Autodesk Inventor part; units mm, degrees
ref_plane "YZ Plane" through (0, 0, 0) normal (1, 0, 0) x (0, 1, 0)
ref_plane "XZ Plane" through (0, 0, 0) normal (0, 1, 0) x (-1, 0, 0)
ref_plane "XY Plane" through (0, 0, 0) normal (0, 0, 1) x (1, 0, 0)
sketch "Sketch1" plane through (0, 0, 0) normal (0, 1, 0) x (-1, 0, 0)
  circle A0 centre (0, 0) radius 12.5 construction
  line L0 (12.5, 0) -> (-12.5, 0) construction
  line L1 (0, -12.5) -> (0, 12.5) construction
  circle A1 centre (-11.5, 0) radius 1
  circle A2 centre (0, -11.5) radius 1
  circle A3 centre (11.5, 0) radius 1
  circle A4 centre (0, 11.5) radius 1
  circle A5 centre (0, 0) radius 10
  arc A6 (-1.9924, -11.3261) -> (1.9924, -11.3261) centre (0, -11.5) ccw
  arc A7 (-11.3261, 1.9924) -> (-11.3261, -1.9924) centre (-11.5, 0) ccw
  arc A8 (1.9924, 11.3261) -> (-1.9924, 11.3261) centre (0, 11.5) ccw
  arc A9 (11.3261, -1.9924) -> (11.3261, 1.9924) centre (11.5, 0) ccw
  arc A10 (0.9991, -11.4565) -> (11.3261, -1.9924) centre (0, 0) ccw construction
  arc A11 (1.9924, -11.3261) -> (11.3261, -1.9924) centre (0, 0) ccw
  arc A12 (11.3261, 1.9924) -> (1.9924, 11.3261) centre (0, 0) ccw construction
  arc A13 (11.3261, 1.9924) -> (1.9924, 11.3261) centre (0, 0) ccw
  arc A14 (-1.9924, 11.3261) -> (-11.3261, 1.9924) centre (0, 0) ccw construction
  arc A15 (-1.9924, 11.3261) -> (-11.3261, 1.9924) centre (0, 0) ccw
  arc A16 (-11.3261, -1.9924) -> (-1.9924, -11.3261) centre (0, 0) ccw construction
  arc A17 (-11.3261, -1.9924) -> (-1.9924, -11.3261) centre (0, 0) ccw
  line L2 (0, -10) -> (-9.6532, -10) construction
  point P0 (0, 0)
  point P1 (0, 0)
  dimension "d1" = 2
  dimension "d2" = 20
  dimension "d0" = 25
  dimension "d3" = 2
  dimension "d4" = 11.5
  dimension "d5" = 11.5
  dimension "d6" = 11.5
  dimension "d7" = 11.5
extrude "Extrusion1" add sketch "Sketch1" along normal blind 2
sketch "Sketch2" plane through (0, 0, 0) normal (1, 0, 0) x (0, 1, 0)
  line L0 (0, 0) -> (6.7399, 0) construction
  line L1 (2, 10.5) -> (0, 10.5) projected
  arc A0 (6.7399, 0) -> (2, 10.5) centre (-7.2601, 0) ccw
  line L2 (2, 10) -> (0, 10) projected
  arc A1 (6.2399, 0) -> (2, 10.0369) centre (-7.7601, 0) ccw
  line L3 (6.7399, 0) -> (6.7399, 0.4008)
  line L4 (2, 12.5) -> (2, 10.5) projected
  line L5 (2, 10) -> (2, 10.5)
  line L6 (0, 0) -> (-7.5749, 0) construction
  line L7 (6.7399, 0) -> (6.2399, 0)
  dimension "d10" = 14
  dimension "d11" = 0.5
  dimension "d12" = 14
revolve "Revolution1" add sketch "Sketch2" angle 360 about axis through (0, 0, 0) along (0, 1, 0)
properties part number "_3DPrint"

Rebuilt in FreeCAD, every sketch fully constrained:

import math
import FreeCAD as App
import Part
import Sketcher
Q = App.Units.Quantity

doc = App.newDocument("Part")
params = doc.addObject("Spreadsheet::Sheet", "Params")
for row, (alias, value) in enumerate([
    ("sketch1_diameter", "2 mm"),
    ("sketch1_diameter2", "20 mm"),
    ("sketch1_radius", "2 mm"),
    ("sketch1_radius2", "11.5 mm"),
    ("pad1_length", "2 mm"),
    ("sketch2_radius", "14 mm"),
    ("sketch2_width", "0.5 mm"),
    ("revolution_angle", "360 deg"),
], start=1):
    params.set(f"A{row}", alias)
    params.set(f"B{row}", "=" + value)
    params.setAlias(f"B{row}", alias)

body = doc.addObject("PartDesign::Body", "Body")

# Sketch on XZ plane
sketch1 = body.newObject("Sketcher::SketchObject", "Sketch")
sketch1.AttachmentSupport = (doc.getObject("XZ_Plane"), [""])
sketch1.MapMode = "FlatFace"
sketch1.addGeometry(Part.ArcOfCircle(Part.Circle(App.Vector(0, 0, 0), App.Vector(0, 0, 1), 11.500009), math.radians(-80.023046), math.radians(-9.976954)), False)
sketch1.addGeometry(Part.ArcOfCircle(Part.Circle(App.Vector(0, -11.5, 0), App.Vector(0, 0, 1), 1.999975), math.radians(175.01177), math.radians(364.98823)), False)
sketch1.addGeometry(Part.ArcOfCircle(Part.Circle(App.Vector(0, 0, 0), App.Vector(0, 0, 1), 11.500009), math.radians(-170.023046), math.radians(-99.976954)), False)
sketch1.addGeometry(Part.ArcOfCircle(Part.Circle(App.Vector(-11.5, 0, 0), App.Vector(0, 0, 1), 1.999975), math.radians(85.01177), math.radians(274.98823)), False)
sketch1.addGeometry(Part.ArcOfCircle(Part.Circle(App.Vector(0, 0, 0), App.Vector(0, 0, 1), 11.500009), math.radians(99.976954), math.radians(170.023046)), False)
sketch1.addGeometry(Part.ArcOfCircle(Part.Circle(App.Vector(0, 11.5, 0), App.Vector(0, 0, 1), 1.999975), math.radians(-4.98823), math.radians(184.98823)), False)
sketch1.addGeometry(Part.ArcOfCircle(Part.Circle(App.Vector(0, 0, 0), App.Vector(0, 0, 1), 11.500009), math.radians(9.976954), math.radians(80.023046)), False)
sketch1.addGeometry(Part.ArcOfCircle(Part.Circle(App.Vector(11.5, 0, 0), App.Vector(0, 0, 1), 1.999975), math.radians(-94.98823), math.radians(94.98823)), False)
sketch1.addGeometry(Part.Circle(App.Vector(0, -11.5, 0), App.Vector(0, 0, 1), 1), False)
sketch1.addGeometry(Part.Circle(App.Vector(11.5, 0, 0), App.Vector(0, 0, 1), 1), False)
sketch1.addGeometry(Part.Circle(App.Vector(0, 0, 0), App.Vector(0, 0, 1), 10), False)
sketch1.addGeometry(Part.Circle(App.Vector(-11.5, 0, 0), App.Vector(0, 0, 1), 1), False)
sketch1.addGeometry(Part.Circle(App.Vector(0, 11.5, 0), App.Vector(0, 0, 1), 1), False)
sketch1.addConstraint(Sketcher.Constraint("Coincident", 0, 1, 1, 2))
sketch1.addConstraint(Sketcher.Constraint("Coincident", 1, 1, 2, 2))
sketch1.addConstraint(Sketcher.Constraint("Coincident", 2, 1, 3, 2))
sketch1.addConstraint(Sketcher.Constraint("Coincident", 3, 1, 4, 2))
sketch1.addConstraint(Sketcher.Constraint("Coincident", 4, 1, 5, 2))
sketch1.addConstraint(Sketcher.Constraint("Coincident", 5, 1, 6, 2))
sketch1.addConstraint(Sketcher.Constraint("Coincident", 6, 1, 7, 2))
sketch1.addConstraint(Sketcher.Constraint("Coincident", 7, 1, 0, 2))
sketch1.addConstraint(Sketcher.Constraint("Coincident", 0, 3, -1, 1))
sketch1.addConstraint(Sketcher.Constraint("Coincident", 2, 3, -1, 1))
sketch1.addConstraint(Sketcher.Constraint("Coincident", 4, 3, -1, 1))
sketch1.addConstraint(Sketcher.Constraint("Coincident", 6, 3, -1, 1))
sketch1.addConstraint(Sketcher.Constraint("Coincident", 10, 3, -1, 1))
sketch1.addConstraint(Sketcher.Constraint("Coincident", 8, 3, 1, 3))
sketch1.addConstraint(Sketcher.Constraint("Coincident", 9, 3, 7, 3))
sketch1.addConstraint(Sketcher.Constraint("Coincident", 11, 3, 3, 3))
sketch1.addConstraint(Sketcher.Constraint("Coincident", 12, 3, 5, 3))
sketch1.addConstraint(Sketcher.Constraint("Equal", 0, 2))
sketch1.addConstraint(Sketcher.Constraint("Equal", 1, 3))
sketch1.addConstraint(Sketcher.Constraint("Equal", 2, 4))
sketch1.addConstraint(Sketcher.Constraint("Equal", 3, 5))
sketch1.addConstraint(Sketcher.Constraint("Equal", 4, 6))
sketch1.addConstraint(Sketcher.Constraint("Equal", 5, 7))
sketch1.addConstraint(Sketcher.Constraint("Equal", 8, 9))
sketch1.addConstraint(Sketcher.Constraint("Equal", 9, 11))
sketch1.addConstraint(Sketcher.Constraint("Equal", 11, 12))
sketch1.addConstraint(Sketcher.Constraint("Symmetric", 1, 3, 5, 3, -1, 1))
sketch1.addConstraint(Sketcher.Constraint("Symmetric", 3, 3, 7, 3, -1, 1))
sketch1.addConstraint(Sketcher.Constraint("PointOnObject", 1, 3, -2))
sketch1.addConstraint(Sketcher.Constraint("PointOnObject", 3, 3, -1))
sketch1.addConstraint(Sketcher.Constraint("Diameter", 8, Q("2 mm")))
sketch1.addConstraint(Sketcher.Constraint("Diameter", 10, Q("20 mm")))
sketch1.addConstraint(Sketcher.Constraint("Radius", 1, Q("2 mm")))
sketch1.addConstraint(Sketcher.Constraint("Radius", 0, Q("11.5 mm")))
sketch1.addConstraint(Sketcher.Constraint("DistanceY", 1, 3, -1, 1, Q("11.5 mm")))
sketch1.addConstraint(Sketcher.Constraint("DistanceX", 3, 3, -1, 1, Q("11.5 mm")))
sketch1.setExpression("Constraints[30]", "Params.sketch1_diameter")
sketch1.setExpression("Constraints[31]", "Params.sketch1_diameter2")
sketch1.setExpression("Constraints[32]", "Params.sketch1_radius")
sketch1.setExpression("Constraints[33]", "Params.sketch1_radius2")
pad1 = body.newObject("PartDesign::Pad", "Pad")
pad1.Profile = sketch1
pad1.setExpression("Length", "Params.pad1_length")
pad1.Reversed = True

# Sketch on YZ plane
sketch2 = body.newObject("Sketcher::SketchObject", "Sketch001")
sketch2.AttachmentSupport = (doc.getObject("YZ_Plane"), [""])
sketch2.MapMode = "FlatFace"
sketch2.addGeometry(Part.LineSegment(App.Vector(6.2399, 0, 0), App.Vector(6.7399, 0, 0)), False)
sketch2.addGeometry(Part.ArcOfCircle(Part.Circle(App.Vector(-7.2601, 0, 0), App.Vector(0, 0, 1), 14), math.radians(0), math.radians(48.590469)), False)
sketch2.addGeometry(Part.LineSegment(App.Vector(2, 10.5, 0), App.Vector(2, 10.0369, 0)), False)
sketch2.addGeometry(Part.ArcOfCircle(Part.Circle(App.Vector(-7.7601, 0, 0), App.Vector(0, 0, 1), 14), math.radians(0), math.radians(45.801053)), False)
sketch2.addConstraint(Sketcher.Constraint("Coincident", 0, 2, 1, 1))
sketch2.addConstraint(Sketcher.Constraint("Coincident", 1, 2, 2, 1))
sketch2.addConstraint(Sketcher.Constraint("Coincident", 2, 2, 3, 2))
sketch2.addConstraint(Sketcher.Constraint("Coincident", 3, 1, 0, 1))
sketch2.addConstraint(Sketcher.Constraint("Horizontal", 0))
sketch2.addConstraint(Sketcher.Constraint("Vertical", 2))
sketch2.addConstraint(Sketcher.Constraint("Equal", 1, 3))
sketch2.addConstraint(Sketcher.Constraint("PointOnObject", 1, 3, -1))
sketch2.addConstraint(Sketcher.Constraint("PointOnObject", 3, 3, -1))
sketch2.addConstraint(Sketcher.Constraint("PointOnObject", 0, 2, -1))
sketch2.addConstraint(Sketcher.Constraint("Radius", 1, Q("14 mm")))
sketch2.addConstraint(Sketcher.Constraint("DistanceX", 0, 1, 0, 2, Q("0.5 mm")))
sketch2.addConstraint(Sketcher.Constraint("DistanceX", -1, 1, 1, 2, Q("2 mm")))
sketch2.addConstraint(Sketcher.Constraint("DistanceY", -1, 1, 1, 2, Q("10.5 mm")))
sketch2.setExpression("Constraints[10]", "Params.sketch2_radius")
sketch2.setExpression("Constraints[11]", "Params.sketch2_width")
revolution = body.newObject("PartDesign::Revolution", "Revolution")
revolution.Profile = sketch2
revolution.ReferenceAxis = (sketch2, ["H_Axis"])
revolution.setExpression("Angle", "Params.revolution_angle")

doc.recompute()
